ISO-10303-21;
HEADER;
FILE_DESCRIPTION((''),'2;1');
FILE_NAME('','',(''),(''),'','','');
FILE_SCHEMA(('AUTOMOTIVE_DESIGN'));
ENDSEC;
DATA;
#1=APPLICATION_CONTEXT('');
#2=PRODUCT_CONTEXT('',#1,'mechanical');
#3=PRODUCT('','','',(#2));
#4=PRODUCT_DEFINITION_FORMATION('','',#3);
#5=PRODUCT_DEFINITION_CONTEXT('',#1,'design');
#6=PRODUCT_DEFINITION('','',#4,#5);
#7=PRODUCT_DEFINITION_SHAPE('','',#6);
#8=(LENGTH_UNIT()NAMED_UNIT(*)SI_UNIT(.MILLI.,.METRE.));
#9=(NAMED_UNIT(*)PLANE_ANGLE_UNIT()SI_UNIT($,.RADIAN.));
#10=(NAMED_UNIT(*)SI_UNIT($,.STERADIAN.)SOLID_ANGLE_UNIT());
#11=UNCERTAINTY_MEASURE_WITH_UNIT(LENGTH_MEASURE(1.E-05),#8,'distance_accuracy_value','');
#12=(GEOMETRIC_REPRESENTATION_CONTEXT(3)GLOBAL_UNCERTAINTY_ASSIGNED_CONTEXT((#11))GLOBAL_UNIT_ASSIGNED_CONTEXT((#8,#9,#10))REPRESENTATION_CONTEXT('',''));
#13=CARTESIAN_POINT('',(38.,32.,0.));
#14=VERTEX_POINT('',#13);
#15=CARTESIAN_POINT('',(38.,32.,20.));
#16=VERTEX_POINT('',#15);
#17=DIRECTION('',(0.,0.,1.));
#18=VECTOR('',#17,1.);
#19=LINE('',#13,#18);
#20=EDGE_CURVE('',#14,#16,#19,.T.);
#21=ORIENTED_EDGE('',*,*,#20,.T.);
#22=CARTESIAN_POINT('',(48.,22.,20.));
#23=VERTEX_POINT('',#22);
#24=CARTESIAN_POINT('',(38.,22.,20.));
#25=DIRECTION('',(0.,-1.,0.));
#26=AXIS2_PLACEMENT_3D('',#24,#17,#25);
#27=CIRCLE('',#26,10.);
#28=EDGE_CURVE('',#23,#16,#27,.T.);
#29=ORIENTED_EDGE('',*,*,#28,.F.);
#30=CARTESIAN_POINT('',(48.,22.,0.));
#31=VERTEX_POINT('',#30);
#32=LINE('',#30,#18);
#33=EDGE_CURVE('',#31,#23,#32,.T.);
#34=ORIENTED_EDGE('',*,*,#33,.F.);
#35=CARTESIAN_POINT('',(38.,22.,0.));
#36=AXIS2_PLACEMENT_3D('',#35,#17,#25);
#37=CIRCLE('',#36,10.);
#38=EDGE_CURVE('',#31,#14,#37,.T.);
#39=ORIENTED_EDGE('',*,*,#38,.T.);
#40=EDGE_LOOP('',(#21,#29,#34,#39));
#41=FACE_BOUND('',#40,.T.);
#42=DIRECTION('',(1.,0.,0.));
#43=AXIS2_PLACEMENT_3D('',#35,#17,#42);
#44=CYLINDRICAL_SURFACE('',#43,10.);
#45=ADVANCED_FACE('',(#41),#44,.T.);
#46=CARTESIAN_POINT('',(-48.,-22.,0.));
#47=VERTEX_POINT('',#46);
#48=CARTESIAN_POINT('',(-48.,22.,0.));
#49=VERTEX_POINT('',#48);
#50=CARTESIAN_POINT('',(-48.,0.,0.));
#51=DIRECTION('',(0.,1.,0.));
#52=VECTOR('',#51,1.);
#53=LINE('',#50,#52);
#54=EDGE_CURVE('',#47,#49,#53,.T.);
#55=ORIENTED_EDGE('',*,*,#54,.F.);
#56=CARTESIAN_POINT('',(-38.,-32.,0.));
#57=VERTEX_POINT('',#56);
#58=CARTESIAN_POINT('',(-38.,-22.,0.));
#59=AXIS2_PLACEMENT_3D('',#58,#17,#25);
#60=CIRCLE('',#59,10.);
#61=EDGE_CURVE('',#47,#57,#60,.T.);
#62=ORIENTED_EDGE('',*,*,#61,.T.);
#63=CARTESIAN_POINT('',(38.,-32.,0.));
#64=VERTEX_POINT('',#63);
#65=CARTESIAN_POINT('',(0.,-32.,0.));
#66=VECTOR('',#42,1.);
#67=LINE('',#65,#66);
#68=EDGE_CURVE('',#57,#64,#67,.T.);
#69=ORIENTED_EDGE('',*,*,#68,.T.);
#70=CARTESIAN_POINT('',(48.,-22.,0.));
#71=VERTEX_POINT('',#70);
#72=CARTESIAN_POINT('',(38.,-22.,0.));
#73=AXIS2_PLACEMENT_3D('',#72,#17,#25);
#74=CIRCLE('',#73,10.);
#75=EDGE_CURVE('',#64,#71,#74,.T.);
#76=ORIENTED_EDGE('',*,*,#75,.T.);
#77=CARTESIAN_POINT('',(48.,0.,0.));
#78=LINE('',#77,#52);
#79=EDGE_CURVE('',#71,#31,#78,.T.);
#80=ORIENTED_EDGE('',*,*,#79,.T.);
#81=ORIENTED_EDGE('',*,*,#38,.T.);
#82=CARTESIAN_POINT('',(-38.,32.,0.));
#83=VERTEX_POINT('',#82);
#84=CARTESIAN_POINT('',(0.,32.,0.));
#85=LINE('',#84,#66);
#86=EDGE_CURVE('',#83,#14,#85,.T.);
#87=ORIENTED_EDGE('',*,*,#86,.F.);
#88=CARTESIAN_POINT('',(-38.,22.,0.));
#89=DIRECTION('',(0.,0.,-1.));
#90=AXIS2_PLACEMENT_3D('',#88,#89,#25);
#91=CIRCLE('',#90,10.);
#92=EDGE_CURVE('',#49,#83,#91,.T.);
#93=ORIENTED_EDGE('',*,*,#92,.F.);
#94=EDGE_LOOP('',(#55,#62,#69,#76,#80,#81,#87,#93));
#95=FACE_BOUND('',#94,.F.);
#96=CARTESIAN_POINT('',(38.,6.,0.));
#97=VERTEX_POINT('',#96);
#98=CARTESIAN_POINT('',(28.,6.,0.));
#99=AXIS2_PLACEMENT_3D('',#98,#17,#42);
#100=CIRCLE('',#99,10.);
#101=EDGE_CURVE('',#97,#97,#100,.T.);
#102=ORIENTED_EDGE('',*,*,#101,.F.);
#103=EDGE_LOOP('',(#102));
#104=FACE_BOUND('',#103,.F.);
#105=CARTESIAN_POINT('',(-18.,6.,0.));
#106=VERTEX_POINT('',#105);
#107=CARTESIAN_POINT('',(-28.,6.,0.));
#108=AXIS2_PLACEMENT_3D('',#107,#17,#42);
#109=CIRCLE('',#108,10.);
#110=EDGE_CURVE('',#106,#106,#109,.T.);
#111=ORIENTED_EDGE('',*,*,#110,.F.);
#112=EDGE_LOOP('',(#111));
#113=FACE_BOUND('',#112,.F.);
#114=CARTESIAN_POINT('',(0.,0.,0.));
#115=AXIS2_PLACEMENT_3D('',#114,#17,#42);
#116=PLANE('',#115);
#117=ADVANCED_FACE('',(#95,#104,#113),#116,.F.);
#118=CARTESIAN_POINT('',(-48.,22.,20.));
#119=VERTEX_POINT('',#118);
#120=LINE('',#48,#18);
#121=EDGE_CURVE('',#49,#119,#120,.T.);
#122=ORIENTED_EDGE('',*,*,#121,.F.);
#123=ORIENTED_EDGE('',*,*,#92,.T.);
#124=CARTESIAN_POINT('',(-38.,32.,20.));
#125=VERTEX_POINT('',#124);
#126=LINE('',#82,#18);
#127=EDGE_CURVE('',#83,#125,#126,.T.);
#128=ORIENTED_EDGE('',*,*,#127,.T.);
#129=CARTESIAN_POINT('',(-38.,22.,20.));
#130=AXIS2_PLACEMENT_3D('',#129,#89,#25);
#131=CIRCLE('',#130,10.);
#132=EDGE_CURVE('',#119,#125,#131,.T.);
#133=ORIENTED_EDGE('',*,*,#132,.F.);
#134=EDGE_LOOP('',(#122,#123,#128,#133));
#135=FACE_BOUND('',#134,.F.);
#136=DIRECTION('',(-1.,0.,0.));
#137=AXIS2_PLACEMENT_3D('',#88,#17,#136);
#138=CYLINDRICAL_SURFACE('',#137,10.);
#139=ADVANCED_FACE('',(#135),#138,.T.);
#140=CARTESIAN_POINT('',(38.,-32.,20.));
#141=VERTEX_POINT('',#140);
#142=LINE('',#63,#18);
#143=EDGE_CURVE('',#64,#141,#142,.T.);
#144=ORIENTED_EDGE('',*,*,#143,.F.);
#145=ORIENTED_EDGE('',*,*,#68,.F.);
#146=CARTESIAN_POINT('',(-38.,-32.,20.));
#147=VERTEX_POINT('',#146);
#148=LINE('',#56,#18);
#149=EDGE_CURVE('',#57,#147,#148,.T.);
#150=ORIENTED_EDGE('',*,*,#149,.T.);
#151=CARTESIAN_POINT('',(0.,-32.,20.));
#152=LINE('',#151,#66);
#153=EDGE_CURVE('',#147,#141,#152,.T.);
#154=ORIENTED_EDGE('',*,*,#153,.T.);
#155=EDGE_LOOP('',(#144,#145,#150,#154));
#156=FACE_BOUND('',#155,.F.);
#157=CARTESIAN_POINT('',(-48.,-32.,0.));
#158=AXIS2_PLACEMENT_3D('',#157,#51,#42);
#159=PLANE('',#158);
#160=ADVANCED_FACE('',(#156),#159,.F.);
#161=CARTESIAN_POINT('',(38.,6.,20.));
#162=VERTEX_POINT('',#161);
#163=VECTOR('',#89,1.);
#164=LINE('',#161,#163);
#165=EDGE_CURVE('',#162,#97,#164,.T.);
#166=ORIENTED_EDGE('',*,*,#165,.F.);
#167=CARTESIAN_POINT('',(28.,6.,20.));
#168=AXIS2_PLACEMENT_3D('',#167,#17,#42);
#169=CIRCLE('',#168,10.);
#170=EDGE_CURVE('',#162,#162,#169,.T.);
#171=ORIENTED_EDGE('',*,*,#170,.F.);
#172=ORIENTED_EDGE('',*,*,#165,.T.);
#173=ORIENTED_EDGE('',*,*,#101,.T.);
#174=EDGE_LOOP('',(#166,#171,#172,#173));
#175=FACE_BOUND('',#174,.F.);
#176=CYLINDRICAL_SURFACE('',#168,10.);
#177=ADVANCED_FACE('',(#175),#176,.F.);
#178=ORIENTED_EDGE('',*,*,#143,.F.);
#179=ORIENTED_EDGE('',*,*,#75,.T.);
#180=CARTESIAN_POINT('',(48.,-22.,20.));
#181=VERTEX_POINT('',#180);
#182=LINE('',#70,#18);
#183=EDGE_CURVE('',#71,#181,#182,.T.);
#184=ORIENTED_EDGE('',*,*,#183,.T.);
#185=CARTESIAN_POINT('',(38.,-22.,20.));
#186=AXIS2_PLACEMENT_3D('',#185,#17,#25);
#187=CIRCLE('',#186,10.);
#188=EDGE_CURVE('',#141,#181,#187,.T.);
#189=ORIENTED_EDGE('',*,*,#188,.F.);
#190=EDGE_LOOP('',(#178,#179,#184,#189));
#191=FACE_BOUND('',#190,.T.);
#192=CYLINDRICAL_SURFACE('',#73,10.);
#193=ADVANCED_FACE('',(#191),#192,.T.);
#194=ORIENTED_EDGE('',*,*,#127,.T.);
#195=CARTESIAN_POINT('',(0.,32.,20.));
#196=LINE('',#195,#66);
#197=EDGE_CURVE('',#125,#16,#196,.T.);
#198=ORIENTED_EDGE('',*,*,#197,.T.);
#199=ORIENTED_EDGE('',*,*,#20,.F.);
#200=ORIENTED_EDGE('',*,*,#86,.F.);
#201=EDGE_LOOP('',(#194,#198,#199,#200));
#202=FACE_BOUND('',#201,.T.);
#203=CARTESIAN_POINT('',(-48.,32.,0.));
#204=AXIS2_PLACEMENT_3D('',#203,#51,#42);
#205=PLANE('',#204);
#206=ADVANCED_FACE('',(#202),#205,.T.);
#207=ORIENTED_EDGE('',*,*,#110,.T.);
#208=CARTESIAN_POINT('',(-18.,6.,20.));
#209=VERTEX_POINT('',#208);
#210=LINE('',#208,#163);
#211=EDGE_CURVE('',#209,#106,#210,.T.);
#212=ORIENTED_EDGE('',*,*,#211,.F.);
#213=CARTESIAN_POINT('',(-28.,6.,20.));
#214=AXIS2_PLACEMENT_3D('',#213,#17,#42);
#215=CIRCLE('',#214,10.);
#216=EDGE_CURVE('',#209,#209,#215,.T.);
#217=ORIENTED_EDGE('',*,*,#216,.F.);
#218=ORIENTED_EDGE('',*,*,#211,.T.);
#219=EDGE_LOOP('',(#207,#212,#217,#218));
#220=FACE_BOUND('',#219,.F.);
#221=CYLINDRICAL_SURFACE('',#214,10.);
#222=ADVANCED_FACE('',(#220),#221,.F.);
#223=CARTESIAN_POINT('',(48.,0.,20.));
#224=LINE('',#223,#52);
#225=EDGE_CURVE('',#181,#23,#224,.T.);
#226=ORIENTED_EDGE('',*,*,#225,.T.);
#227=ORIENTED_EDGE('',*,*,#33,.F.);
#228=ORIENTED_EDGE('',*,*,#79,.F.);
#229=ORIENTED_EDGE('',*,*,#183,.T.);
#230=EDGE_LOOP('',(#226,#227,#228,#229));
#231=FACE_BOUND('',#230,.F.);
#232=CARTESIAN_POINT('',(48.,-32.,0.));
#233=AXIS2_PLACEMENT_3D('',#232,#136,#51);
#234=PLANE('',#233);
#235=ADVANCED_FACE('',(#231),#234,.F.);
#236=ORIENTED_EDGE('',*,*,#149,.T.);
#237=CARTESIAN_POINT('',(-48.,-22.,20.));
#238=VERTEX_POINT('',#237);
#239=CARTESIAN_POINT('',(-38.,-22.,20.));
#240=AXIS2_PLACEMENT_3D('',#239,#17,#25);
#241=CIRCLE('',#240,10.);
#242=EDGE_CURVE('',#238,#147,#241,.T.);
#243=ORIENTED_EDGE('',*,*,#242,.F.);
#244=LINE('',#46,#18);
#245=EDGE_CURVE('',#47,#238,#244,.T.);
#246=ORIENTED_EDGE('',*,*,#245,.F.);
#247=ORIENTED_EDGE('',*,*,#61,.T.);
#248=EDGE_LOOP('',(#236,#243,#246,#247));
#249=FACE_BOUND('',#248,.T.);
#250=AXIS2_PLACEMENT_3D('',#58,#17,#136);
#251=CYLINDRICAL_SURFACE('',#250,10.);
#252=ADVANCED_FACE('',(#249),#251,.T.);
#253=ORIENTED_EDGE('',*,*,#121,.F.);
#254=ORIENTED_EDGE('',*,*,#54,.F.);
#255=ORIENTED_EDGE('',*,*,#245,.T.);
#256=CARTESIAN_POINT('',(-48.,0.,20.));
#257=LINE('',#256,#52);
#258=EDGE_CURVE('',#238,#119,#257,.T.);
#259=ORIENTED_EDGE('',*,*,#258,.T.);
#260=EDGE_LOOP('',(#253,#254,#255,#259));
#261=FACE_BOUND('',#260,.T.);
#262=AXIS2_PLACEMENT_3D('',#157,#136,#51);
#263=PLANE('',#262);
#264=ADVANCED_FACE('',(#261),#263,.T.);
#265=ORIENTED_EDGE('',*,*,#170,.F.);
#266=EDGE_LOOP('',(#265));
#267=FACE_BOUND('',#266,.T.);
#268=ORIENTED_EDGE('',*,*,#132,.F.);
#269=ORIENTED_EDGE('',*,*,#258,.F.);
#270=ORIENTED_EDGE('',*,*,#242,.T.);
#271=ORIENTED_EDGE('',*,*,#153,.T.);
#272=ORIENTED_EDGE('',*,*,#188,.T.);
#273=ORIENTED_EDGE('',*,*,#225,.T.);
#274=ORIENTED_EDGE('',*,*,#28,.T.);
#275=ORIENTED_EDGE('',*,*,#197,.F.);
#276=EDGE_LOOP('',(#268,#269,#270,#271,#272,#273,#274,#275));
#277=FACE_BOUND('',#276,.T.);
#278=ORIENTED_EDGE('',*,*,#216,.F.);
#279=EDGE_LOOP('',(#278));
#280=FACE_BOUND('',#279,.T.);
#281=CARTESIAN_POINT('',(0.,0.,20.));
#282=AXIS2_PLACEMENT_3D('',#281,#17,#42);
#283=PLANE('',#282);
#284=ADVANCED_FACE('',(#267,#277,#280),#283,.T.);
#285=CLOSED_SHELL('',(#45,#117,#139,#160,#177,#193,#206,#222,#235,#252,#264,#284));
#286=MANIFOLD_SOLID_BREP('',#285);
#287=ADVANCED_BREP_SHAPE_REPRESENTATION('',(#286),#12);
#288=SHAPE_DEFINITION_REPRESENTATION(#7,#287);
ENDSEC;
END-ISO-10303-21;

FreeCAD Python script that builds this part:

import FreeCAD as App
import Part
import Sketcher

V = App.Vector


def edges_at(feature, points):
    """Names of the edges that pass closest to the given points."""
    edges = feature.Shape.Edges
    near = lambda p: min(range(len(edges)), key=lambda i: edges[i].distToShape(Part.Vertex(*p))[0])
    return sorted({f"Edge{near(p) + 1}" for p in points})

doc = App.newDocument("Part")
body = doc.addObject("PartDesign::Body", "Body")

# Sketch on XY plane
sketch1 = doc.addObject("Sketcher::SketchObject", "Sketch")
body.addObject(sketch1)
sketch1.AttachmentSupport = (doc.XY_Plane, [""])
sketch1.MapMode = "FlatFace"
sketch1.addGeometry([
    Part.LineSegment(V(-48, 32, 0), V(-48, -32, 0)),
    Part.LineSegment(V(-48, -32, 0), V(48, -32, 0)),
    Part.LineSegment(V(48, -32, 0), V(48, 32, 0)),
    Part.LineSegment(V(48, 32, 0), V(-48, 32, 0)),
], False)
sketch1.addConstraint([
    Sketcher.Constraint("Coincident", 0, 2, 1, 1),
    Sketcher.Constraint("Coincident", 1, 2, 2, 1),
    Sketcher.Constraint("Coincident", 2, 2, 3, 1),
    Sketcher.Constraint("Coincident", 3, 2, 0, 1),
    Sketcher.Constraint("Vertical", 0),
    Sketcher.Constraint("Horizontal", 1),
    Sketcher.Constraint("Vertical", 2),
    Sketcher.Constraint("Horizontal", 3),
    Sketcher.Constraint("Symmetric", 0, 2, 2, 2, -1, 1),
    Sketcher.Constraint("DistanceX", 1, 1, 1, 2, 96.0),
    Sketcher.Constraint("DistanceY", 0, 2, 0, 1, 64.0),
])
pad1 = doc.addObject("PartDesign::Pad", "Pad")
body.addObject(pad1)
pad1.Profile = sketch1
pad1.Length = 20
doc.recompute()

fillet = doc.addObject("PartDesign::Fillet", "Fillet")
body.addObject(fillet)
fillet.Base = (pad1, edges_at(pad1, [
    (48, -32, 10),
    (48, 32, 10),
    (-48, 32, 10),
    (-48, -32, 10),
]))
fillet.Radius = 10

# Sketch on XY plane
sketch2 = doc.addObject("Sketcher::SketchObject", "Sketch001")
body.addObject(sketch2)
sketch2.AttachmentSupport = (doc.XY_Plane, [""])
sketch2.MapMode = "FlatFace"
sketch2.AttachmentOffset = App.Placement(V(0, 0, 20), App.Rotation())
sketch2.addGeometry(Part.Circle(V(28, 6, 0), V(0, 0, 1), 10), False)
sketch2.addConstraint([
    Sketcher.Constraint("Diameter", 0, 20.0),
    Sketcher.Constraint("DistanceX", -1, 1, 0, 3, 28.0),
    Sketcher.Constraint("DistanceY", -1, 1, 0, 3, 6.0),
])
pocket1 = doc.addObject("PartDesign::Pocket", "Pocket")
body.addObject(pocket1)
pocket1.Profile = sketch2
pocket1.Length = 25

# Sketch on XY plane
sketch3 = doc.addObject("Sketcher::SketchObject", "Sketch002")
body.addObject(sketch3)
sketch3.AttachmentSupport = (doc.XY_Plane, [""])
sketch3.MapMode = "FlatFace"
sketch3.AttachmentOffset = App.Placement(V(0, 0, 20), App.Rotation())
sketch3.addGeometry(Part.Circle(V(-28, 6, 0), V(0, 0, 1), 10), False)
sketch3.addConstraint([
    Sketcher.Constraint("Diameter", 0, 20.0),
    Sketcher.Constraint("DistanceX", 0, 3, -1, 1, 28.0),
    Sketcher.Constraint("DistanceY", -1, 1, 0, 3, 6.0),
])
pocket2 = doc.addObject("PartDesign::Pocket", "Pocket001")
body.addObject(pocket2)
pocket2.Profile = sketch3
pocket2.Length = 55.9

doc.recompute()
